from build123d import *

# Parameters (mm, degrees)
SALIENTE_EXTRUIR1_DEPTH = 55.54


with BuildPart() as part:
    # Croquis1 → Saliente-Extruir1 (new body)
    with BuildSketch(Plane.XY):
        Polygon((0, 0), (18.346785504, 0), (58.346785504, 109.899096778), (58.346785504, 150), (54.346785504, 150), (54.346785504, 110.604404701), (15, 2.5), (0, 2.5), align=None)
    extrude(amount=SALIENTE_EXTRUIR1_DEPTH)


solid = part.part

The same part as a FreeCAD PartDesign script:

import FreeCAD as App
import Part
import Sketcher
from FreeCAD import Vector
Q = App.Units.Quantity

doc = App.newDocument("Part")
body = doc.addObject("PartDesign::Body", "Body")

# Sketch on XY plane
sketch1 = body.newObject("Sketcher::SketchObject", "Sketch")
sketch1.AttachmentSupport = (doc.getObject("XY_Plane"), [""])
sketch1.MapMode = "FlatFace"
sketch1.addGeometry([
    Part.LineSegment(Vector(0, 0, 0), Vector(18.346786, 0, 0)),  # 0
    Part.LineSegment(Vector(18.346786, 0, 0), Vector(58.346786, 109.899097, 0)),  # 1
    Part.LineSegment(Vector(58.346786, 109.899097, 0), Vector(58.346786, 150, 0)),  # 2
    Part.LineSegment(Vector(58.346786, 150, 0), Vector(54.346786, 150, 0)),  # 3
    Part.LineSegment(Vector(54.346786, 150, 0), Vector(54.346786, 110.604405, 0)),  # 4
    Part.LineSegment(Vector(54.346786, 110.604405, 0), Vector(15, 2.5, 0)),  # 5
    Part.LineSegment(Vector(15, 2.5, 0), Vector(0, 2.5, 0)),  # 6
    Part.LineSegment(Vector(0, 2.5, 0), Vector(0, 0, 0)),  # 7
], False)
sketch1.addConstraint([
    Sketcher.Constraint("Coincident", 0, 2, 1, 1),
    Sketcher.Constraint("Coincident", 1, 2, 2, 1),
    Sketcher.Constraint("Coincident", 2, 2, 3, 1),
    Sketcher.Constraint("Coincident", 3, 2, 4, 1),
    Sketcher.Constraint("Coincident", 4, 2, 5, 1),
    Sketcher.Constraint("Coincident", 5, 2, 6, 1),
    Sketcher.Constraint("Coincident", 6, 2, 7, 1),
    Sketcher.Constraint("Coincident", 7, 2, 0, 1),
    Sketcher.Constraint("Horizontal", 0),
    Sketcher.Constraint("Vertical", 2),
    Sketcher.Constraint("Horizontal", 3),
    Sketcher.Constraint("Vertical", 4),
    Sketcher.Constraint("Horizontal", 6),
    Sketcher.Constraint("Vertical", 7),
    Sketcher.Constraint("Coincident", 7, 2, -1, 1),
    Sketcher.Constraint("Parallel", 1, 5),
    Sketcher.Constraint("DistanceX", 3, 2, 3, 1, 4.0),
    Sketcher.Constraint("DistanceX", 6, 2, 6, 1, 15.0),
    Sketcher.Constraint("Angle", 1, Q("70 deg")),
    Sketcher.Constraint("DistanceY", 7, 2, 7, 1, 2.5),
    Sketcher.Constraint("DistanceY", -1, 1, 2, 2, 150.0),
    Sketcher.Constraint("DistanceX", 0, 2, 1, 2, 40.0),
    Sketcher.Constraint("DistanceX", 0, 1, 0, 2, 18.346786),
])
pad1 = body.newObject("PartDesign::Pad", "Pad")
pad1.Profile = sketch1
pad1.Length = 55.54

doc.recompute()
